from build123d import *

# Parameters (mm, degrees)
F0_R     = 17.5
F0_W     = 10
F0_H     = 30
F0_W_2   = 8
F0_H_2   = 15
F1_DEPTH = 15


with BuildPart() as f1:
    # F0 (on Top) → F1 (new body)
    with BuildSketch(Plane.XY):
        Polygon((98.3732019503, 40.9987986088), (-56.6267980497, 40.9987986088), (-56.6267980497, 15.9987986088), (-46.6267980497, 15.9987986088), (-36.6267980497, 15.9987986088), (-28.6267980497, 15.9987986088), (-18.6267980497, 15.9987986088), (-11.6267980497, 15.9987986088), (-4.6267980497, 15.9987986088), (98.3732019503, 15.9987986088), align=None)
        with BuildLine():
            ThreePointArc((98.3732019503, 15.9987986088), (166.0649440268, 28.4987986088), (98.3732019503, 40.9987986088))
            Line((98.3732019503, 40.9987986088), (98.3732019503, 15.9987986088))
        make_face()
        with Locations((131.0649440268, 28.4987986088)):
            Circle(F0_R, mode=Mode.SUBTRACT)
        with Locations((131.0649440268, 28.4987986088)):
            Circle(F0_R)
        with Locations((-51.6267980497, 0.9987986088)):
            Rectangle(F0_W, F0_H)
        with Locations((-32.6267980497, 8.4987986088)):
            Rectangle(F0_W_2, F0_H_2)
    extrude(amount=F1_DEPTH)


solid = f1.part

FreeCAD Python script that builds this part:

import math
import FreeCAD as App
import Part
import Sketcher

V = App.Vector

doc = App.newDocument("Part")
body = doc.addObject("PartDesign::Body", "Body")

# Sketch on XY plane
sketch1 = doc.addObject("Sketcher::SketchObject", "Sketch")
body.addObject(sketch1)
sketch1.AttachmentSupport = (doc.XY_Plane, [""])
sketch1.MapMode = "FlatFace"
sketch1.addGeometry([
    Part.LineSegment(V(98, 41, 0), V(-57, 41, 0)),  # 0
    Part.LineSegment(V(-57, 41, 0), V(-57, -14, 0)),  # 1
    Part.LineSegment(V(-57, -14, 0), V(-47, -14, 0)),  # 2
    Part.LineSegment(V(-47, -14, 0), V(-47, 16, 0)),  # 3
    Part.LineSegment(V(-47, 16, 0), V(-37, 16, 0)),  # 4
    Part.LineSegment(V(-37, 16, 0), V(-37, 1, 0)),  # 5
    Part.LineSegment(V(-37, 1, 0), V(-29, 1, 0)),  # 6
    Part.LineSegment(V(-29, 1, 0), V(-29, 16, 0)),  # 7
    Part.LineSegment(V(-29, 16, 0), V(98, 16, 0)),  # 8
    Part.ArcOfCircle(Part.Circle(V(131, 28, 0), V(0, 0, 1), 35), math.radians(-159), math.radians(159)),  # 9
], False)
sketch1.addConstraint([
    Sketcher.Constraint("Coincident", 0, 2, 1, 1),
    Sketcher.Constraint("Coincident", 1, 2, 2, 1),
    Sketcher.Constraint("Coincident", 2, 2, 3, 1),
    Sketcher.Constraint("Coincident", 3, 2, 4, 1),
    Sketcher.Constraint("Coincident", 4, 2, 5, 1),
    Sketcher.Constraint("Coincident", 5, 2, 6, 1),
    Sketcher.Constraint("Coincident", 6, 2, 7, 1),
    Sketcher.Constraint("Coincident", 7, 2, 8, 1),
    Sketcher.Constraint("Coincident", 8, 2, 9, 1),
    Sketcher.Constraint("Coincident", 9, 2, 0, 1),
    Sketcher.Constraint("Horizontal", 0),
    Sketcher.Constraint("Vertical", 1),
    Sketcher.Constraint("Horizontal", 2),
    Sketcher.Constraint("Vertical", 3),
    Sketcher.Constraint("Horizontal", 4),
    Sketcher.Constraint("Vertical", 5),
    Sketcher.Constraint("Horizontal", 6),
    Sketcher.Constraint("Vertical", 7),
    Sketcher.Constraint("Horizontal", 8),
    Sketcher.Constraint("Horizontal", 4, 2, 7, 2),
    Sketcher.Constraint("Vertical", 8, 2, 9, 2),
    Sketcher.Constraint("Equal", 2, 4),
    Sketcher.Constraint("Radius", 9, 35.0),
    Sketcher.Constraint("DistanceX", 0, 2, 0, 1, 155.0),
    Sketcher.Constraint("DistanceX", 2, 1, 2, 2, 10.0),
    Sketcher.Constraint("DistanceX", 6, 1, 6, 2, 8.0),
    Sketcher.Constraint("DistanceY", 1, 2, 1, 1, 55.0),
    Sketcher.Constraint("DistanceY", 3, 1, 3, 2, 30.0),
    Sketcher.Constraint("DistanceY", 5, 2, 5, 1, 15.0),
    Sketcher.Constraint("DistanceY", -1, 1, 9, 3, 28.498799),
    Sketcher.Constraint("DistanceX", 0, 2, -1, 1, 56.626798),
])
pad1 = doc.addObject("PartDesign::Pad", "Pad")
body.addObject(pad1)
pad1.Profile = sketch1
pad1.Length = 15

doc.recompute()
